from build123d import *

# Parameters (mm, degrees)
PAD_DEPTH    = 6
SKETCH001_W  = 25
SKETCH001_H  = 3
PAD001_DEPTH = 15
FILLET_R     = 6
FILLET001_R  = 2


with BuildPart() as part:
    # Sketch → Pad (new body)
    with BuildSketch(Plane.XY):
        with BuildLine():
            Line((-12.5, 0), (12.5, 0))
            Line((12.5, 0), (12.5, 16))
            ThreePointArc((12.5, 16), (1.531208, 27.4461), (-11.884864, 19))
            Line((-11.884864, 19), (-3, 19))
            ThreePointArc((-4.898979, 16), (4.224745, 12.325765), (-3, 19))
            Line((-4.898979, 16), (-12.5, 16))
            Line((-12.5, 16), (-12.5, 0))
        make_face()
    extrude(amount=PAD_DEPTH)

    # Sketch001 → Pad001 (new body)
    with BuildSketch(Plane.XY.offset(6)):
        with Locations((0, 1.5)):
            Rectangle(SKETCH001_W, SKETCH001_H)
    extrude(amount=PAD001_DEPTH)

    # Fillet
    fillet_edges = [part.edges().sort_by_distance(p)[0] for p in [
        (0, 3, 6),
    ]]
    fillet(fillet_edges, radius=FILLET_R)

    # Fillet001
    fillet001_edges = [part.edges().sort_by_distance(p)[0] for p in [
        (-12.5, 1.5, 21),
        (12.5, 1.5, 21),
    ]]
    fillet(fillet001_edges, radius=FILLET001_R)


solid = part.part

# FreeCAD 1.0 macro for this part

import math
import FreeCAD as App
import Part
import Sketcher

V = App.Vector
Q = App.Units.Quantity


def edges_at(feature, points):
    """Names of the edges that pass closest to the given points."""
    edges = feature.Shape.Edges
    near = lambda p: min(range(len(edges)), key=lambda i: edges[i].distToShape(Part.Vertex(*p))[0])
    return sorted({f"Edge{near(p) + 1}" for p in points})


def add_polygon(sketch, points):
    """Adds a closed chain of lines whose ends are joined by coincident constraints."""
    first, n = sketch.GeometryCount, len(points)
    for a, b in zip(points, points[1:] + points[:1]):
        sketch.addGeometry(Part.LineSegment(App.Vector(*a, 0), App.Vector(*b, 0)), False)
    for i in range(n):
        sketch.addConstraint(Sketcher.Constraint("Coincident", first + i, 2, first + (i + 1) % n, 1))

doc = App.newDocument("Part")
body = doc.addObject("PartDesign::Body", "Body")

# Sketch on XY plane
sketch1 = body.newObject("Sketcher::SketchObject", "Sketch")
sketch1.AttachmentSupport = (doc.getObject("XY_Plane"), [""])
sketch1.MapMode = "FlatFace"
sketch1.addGeometry(Part.LineSegment(V(-12.5, 0, 0), V(12.5, 0, 0)), False)
sketch1.addGeometry(Part.LineSegment(V(12.5, 0, 0), V(12.5, 16, 0)), False)
sketch1.addGeometry(Part.ArcOfCircle(Part.Circle(V(0, 15, 0), V(0, 0, 1), 12.539936), math.radians(4.57392), math.radians(161.398697)), False)
sketch1.addGeometry(Part.LineSegment(V(-11.884864, 19, 0), V(-3, 19, 0)), False)
sketch1.addGeometry(Part.ArcOfCircle(Part.Circle(V(0.000001, 15, 0), V(0, 0, 1), 5), math.radians(168.463046), math.radians(486.869906)), False)
sketch1.addGeometry(Part.LineSegment(V(-4.898979, 16, 0), V(-12.5, 16, 0)), False)
sketch1.addGeometry(Part.LineSegment(V(-12.5, 16, 0), V(-12.5, 0, 0)), False)
sketch1.addConstraint(Sketcher.Constraint("Coincident", 0, 2, 1, 1))
sketch1.addConstraint(Sketcher.Constraint("Coincident", 1, 2, 2, 1))
sketch1.addConstraint(Sketcher.Constraint("Coincident", 2, 2, 3, 1))
sketch1.addConstraint(Sketcher.Constraint("Coincident", 3, 2, 4, 2))
sketch1.addConstraint(Sketcher.Constraint("Coincident", 4, 1, 5, 1))
sketch1.addConstraint(Sketcher.Constraint("Coincident", 5, 2, 6, 1))
sketch1.addConstraint(Sketcher.Constraint("Coincident", 6, 2, 0, 1))
sketch1.addConstraint(Sketcher.Constraint("Horizontal", 0))
sketch1.addConstraint(Sketcher.Constraint("Vertical", 1))
sketch1.addConstraint(Sketcher.Constraint("Horizontal", 3))
sketch1.addConstraint(Sketcher.Constraint("Horizontal", 5))
sketch1.addConstraint(Sketcher.Constraint("Vertical", 6))
sketch1.addConstraint(Sketcher.Constraint("Coincident", 4, 3, 2, 3))
sketch1.addConstraint(Sketcher.Constraint("Symmetric", 0, 2, 6, 2, -1, 1))
sketch1.addConstraint(Sketcher.Constraint("PointOnObject", 2, 3, -2))
sketch1.addConstraint(Sketcher.Constraint("Horizontal", 1, 2, 4, 1))
sketch1.addConstraint(Sketcher.Constraint("Radius", 4, Q("5 mm")))
sketch1.addConstraint(Sketcher.Constraint("DistanceX", 0, 1, 0, 2, Q("25 mm")))
sketch1.addConstraint(Sketcher.Constraint("DistanceY", 1, 1, 1, 2, Q("16 mm")))
sketch1.addConstraint(Sketcher.Constraint("DistanceY", -1, 1, 2, 3, Q("15 mm")))
sketch1.addConstraint(Sketcher.Constraint("DistanceY", -1, 1, 2, 2, Q("19 mm")))
pad1 = body.newObject("PartDesign::Pad", "Pad")
pad1.Profile = sketch1
pad1.Length = 6

# Sketch on XY plane
sketch2 = body.newObject("Sketcher::SketchObject", "Sketch001")
sketch2.AttachmentSupport = (doc.getObject("XY_Plane"), [""])
sketch2.MapMode = "FlatFace"
sketch2.AttachmentOffset = App.Placement(V(0, 0, 6), App.Rotation())
add_polygon(sketch2, [(-12.5, 3), (-12.5, 0), (12.5, 0), (12.5, 3)])  # lines 0-3
sketch2.addConstraint(Sketcher.Constraint("Vertical", 0))
sketch2.addConstraint(Sketcher.Constraint("Horizontal", 1))
sketch2.addConstraint(Sketcher.Constraint("Vertical", 2))
sketch2.addConstraint(Sketcher.Constraint("Horizontal", 3))
sketch2.addConstraint(Sketcher.Constraint("Symmetric", 0, 2, 1, 2, -1, 1))
sketch2.addConstraint(Sketcher.Constraint("DistanceX", 1, 1, 1, 2, Q("25 mm")))
sketch2.addConstraint(Sketcher.Constraint("DistanceY", 0, 2, 0, 1, Q("3 mm")))
pad2 = body.newObject("PartDesign::Pad", "Pad001")
pad2.Profile = sketch2
pad2.Length = 15
doc.recompute()

fillet = body.newObject("PartDesign::Fillet", "Fillet")
fillet.Base = (pad2, edges_at(pad2, [(0, 3, 6)]))
fillet.Radius = 6
doc.recompute()

fillet2 = body.newObject("PartDesign::Fillet", "Fillet001")
fillet2.Base = (fillet, edges_at(fillet, [(-12.5, 1.5, 21), (12.5, 1.5, 21)]))
fillet2.Radius = 2

doc.recompute()
